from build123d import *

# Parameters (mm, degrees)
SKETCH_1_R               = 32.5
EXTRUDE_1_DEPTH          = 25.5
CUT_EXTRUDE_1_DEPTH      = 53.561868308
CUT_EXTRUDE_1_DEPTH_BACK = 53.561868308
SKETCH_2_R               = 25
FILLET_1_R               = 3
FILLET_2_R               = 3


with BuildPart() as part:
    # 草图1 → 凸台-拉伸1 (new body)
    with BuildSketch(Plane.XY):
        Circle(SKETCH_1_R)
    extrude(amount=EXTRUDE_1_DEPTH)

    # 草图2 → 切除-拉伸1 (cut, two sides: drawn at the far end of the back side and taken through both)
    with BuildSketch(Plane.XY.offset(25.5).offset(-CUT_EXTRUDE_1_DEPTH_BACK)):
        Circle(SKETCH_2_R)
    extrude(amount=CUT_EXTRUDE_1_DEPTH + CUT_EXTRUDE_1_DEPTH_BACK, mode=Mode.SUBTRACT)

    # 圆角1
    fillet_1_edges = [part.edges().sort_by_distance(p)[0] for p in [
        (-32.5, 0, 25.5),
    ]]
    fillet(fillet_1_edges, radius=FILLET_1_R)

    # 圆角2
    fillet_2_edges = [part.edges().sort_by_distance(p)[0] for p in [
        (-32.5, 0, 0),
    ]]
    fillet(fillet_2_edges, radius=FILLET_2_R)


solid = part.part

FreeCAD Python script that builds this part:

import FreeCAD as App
import Part
import Sketcher


def edges_at(feature, points):
    """Names of the edges that pass closest to the given points."""
    edges = feature.Shape.Edges
    near = lambda p: min(range(len(edges)), key=lambda i: edges[i].distToShape(Part.Vertex(*p))[0])
    return sorted({f"Edge{near(p) + 1}" for p in points})

doc = App.newDocument("Part")
body = doc.addObject("PartDesign::Body", "Body")

sketch1 = body.newObject("Sketcher::SketchObject", "Sketch")
sketch1.AttachmentSupport = (doc.getObject("XY_Plane"), [""])
sketch1.MapMode = "FlatFace"
sketch1.addGeometry(Part.Circle(App.Vector(0, 0, 0), App.Vector(0, 0, 1), 32), False)
sketch1.addConstraint([
    Sketcher.Constraint("Coincident", 0, 3, -1, 1),
    Sketcher.Constraint("Diameter", 0, 65.0),
])
pad1 = body.newObject("PartDesign::Pad", "Pad")
pad1.Profile = sketch1
pad1.Length = 25.5

sketch2 = body.newObject("Sketcher::SketchObject", "Sketch001")
sketch2.AttachmentSupport = (doc.getObject("XY_Plane"), [""])
sketch2.MapMode = "FlatFace"
sketch2.AttachmentOffset = App.Placement(App.Vector(0, 0, 25.5), App.Rotation())
sketch2.addGeometry(Part.Circle(App.Vector(0, 0, 0), App.Vector(0, 0, 1), 25), False)
sketch2.addConstraint([
    Sketcher.Constraint("Coincident", 0, 3, -1, 1),
    Sketcher.Constraint("Diameter", 0, 50.0),
])
pocket1 = body.newObject("PartDesign::Pocket", "Pocket")
pocket1.Profile = sketch2
pocket1.Type = "ThroughAll"
pocket1.Midplane = True
doc.recompute()

fillet = body.newObject("PartDesign::Fillet", "Fillet")
fillet.Base = (pocket1, edges_at(pocket1, [(-32.5, 0, 25.5)]))
fillet.Radius = 3
doc.recompute()

fillet2 = body.newObject("PartDesign::Fillet", "Fillet001")
fillet2.Base = (fillet, edges_at(fillet, [(-32.5, 0, 0)]))
fillet2.Radius = 3

doc.recompute()
